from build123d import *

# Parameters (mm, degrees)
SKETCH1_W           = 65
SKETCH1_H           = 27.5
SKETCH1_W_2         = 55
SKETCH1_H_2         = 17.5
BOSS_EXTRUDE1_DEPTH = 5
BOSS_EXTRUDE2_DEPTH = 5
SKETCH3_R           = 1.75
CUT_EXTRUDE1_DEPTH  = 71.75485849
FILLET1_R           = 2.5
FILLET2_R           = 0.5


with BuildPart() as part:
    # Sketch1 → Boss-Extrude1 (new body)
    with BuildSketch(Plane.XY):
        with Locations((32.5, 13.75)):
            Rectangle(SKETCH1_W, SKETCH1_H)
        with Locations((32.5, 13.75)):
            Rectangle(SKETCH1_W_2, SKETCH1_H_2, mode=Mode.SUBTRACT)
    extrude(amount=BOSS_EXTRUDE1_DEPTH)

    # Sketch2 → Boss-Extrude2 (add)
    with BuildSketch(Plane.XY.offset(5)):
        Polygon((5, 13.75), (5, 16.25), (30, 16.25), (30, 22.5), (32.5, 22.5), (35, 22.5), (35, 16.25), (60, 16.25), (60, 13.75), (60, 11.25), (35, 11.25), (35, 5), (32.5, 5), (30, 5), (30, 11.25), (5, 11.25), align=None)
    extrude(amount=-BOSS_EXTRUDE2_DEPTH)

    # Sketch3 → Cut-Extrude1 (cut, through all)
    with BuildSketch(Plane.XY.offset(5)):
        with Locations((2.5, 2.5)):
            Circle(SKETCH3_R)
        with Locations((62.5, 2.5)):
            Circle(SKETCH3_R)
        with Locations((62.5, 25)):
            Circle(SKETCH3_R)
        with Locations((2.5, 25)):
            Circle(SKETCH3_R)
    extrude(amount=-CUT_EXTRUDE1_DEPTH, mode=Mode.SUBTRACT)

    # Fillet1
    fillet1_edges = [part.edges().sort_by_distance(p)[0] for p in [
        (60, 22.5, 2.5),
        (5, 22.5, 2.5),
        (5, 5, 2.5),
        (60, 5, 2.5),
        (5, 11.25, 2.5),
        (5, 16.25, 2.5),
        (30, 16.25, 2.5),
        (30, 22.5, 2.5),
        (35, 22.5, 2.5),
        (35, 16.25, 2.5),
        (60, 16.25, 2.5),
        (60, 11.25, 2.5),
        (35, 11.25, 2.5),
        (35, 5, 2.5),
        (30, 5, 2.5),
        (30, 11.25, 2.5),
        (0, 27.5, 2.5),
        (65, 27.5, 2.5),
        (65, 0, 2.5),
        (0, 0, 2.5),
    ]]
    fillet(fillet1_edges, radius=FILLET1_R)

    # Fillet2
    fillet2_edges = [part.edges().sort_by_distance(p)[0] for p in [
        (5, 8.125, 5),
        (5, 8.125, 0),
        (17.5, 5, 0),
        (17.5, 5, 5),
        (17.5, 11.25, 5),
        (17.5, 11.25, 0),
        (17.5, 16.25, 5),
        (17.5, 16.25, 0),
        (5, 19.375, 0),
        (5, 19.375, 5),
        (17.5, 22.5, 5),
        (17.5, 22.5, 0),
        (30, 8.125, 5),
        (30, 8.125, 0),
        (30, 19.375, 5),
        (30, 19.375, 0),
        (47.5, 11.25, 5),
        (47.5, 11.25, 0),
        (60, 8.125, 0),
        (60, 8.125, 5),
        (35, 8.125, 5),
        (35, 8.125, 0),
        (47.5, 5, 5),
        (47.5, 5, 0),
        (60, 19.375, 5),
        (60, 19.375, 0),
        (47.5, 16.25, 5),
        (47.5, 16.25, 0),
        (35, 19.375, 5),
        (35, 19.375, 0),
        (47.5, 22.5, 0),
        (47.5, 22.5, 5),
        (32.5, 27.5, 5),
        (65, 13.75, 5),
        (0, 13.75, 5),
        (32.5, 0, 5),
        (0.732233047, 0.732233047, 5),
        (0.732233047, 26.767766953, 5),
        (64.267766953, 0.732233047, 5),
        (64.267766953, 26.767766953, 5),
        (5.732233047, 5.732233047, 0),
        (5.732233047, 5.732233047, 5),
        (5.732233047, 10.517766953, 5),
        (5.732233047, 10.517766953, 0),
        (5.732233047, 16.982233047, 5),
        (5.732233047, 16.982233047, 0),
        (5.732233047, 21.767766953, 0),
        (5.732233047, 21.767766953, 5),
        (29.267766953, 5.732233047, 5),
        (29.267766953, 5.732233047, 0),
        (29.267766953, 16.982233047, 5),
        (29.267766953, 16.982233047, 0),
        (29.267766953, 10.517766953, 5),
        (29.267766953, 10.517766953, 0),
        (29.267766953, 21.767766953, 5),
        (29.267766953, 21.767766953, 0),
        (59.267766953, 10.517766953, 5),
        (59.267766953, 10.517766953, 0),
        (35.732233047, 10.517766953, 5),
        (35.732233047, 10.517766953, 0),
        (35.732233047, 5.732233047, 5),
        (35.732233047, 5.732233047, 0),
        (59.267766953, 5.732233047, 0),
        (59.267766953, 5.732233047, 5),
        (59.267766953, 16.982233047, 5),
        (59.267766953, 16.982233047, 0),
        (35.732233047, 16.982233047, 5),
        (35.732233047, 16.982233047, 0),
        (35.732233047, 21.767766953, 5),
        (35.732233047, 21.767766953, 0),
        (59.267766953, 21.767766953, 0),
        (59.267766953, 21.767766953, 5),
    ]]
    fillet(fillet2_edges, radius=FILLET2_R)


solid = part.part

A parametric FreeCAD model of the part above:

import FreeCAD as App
import Part
import Sketcher

V = App.Vector
Q = App.Units.Quantity


def edges_at(feature, points):
    """Names of the edges that pass closest to the given points."""
    edges = feature.Shape.Edges
    near = lambda p: min(range(len(edges)), key=lambda i: edges[i].distToShape(Part.Vertex(*p))[0])
    return sorted({f"Edge{near(p) + 1}" for p in points})


def add_polygon(sketch, points):
    """Adds a closed chain of lines whose ends are joined by coincident constraints."""
    first, n = sketch.GeometryCount, len(points)
    for a, b in zip(points, points[1:] + points[:1]):
        sketch.addGeometry(Part.LineSegment(App.Vector(*a, 0), App.Vector(*b, 0)), False)
    for i in range(n):
        sketch.addConstraint(Sketcher.Constraint("Coincident", first + i, 2, first + (i + 1) % n, 1))

doc = App.newDocument("Part")
body = doc.addObject("PartDesign::Body", "Body")

sketch1 = body.newObject("Sketcher::SketchObject", "Sketch")
sketch1.AttachmentSupport = (doc.getObject("XY_Plane"), [""])
sketch1.MapMode = "FlatFace"
add_polygon(sketch1, [(0, 28), (0, 0), (65, 0), (65, 28)])
add_polygon(sketch1, [(60, 5), (5, 5), (5, 22), (60, 22)])
sketch1.addConstraint([
    Sketcher.Constraint("Vertical", 0),
    Sketcher.Constraint("Horizontal", 1),
    Sketcher.Constraint("Vertical", 2),
    Sketcher.Constraint("Horizontal", 3),
    Sketcher.Constraint("Horizontal", 4),
    Sketcher.Constraint("Vertical", 5),
    Sketcher.Constraint("Horizontal", 6),
    Sketcher.Constraint("Vertical", 7),
    Sketcher.Constraint("Coincident", 0, 2, -1, 1),
    Sketcher.Constraint("DistanceX", 1, 1, 1, 2, Q("65 mm")),
    Sketcher.Constraint("DistanceX", 4, 2, 4, 1, Q("55 mm")),
    Sketcher.Constraint("DistanceY", 0, 2, 0, 1, Q("27.5 mm")),
    Sketcher.Constraint("DistanceY", 5, 1, 5, 2, Q("17.5 mm")),
    Sketcher.Constraint("DistanceX", -1, 1, 4, 2, Q("5 mm")),
    Sketcher.Constraint("DistanceY", -1, 1, 4, 2, Q("5 mm")),
])
pad1 = body.newObject("PartDesign::Pad", "Pad")
pad1.Profile = sketch1
pad1.Length = 5

sketch2 = body.newObject("Sketcher::SketchObject", "Sketch001")
sketch2.AttachmentSupport = (doc.getObject("XY_Plane"), [""])
sketch2.MapMode = "FlatFace"
sketch2.AttachmentOffset = App.Placement(V(0, 0, 5), App.Rotation())
add_polygon(sketch2, [(5, 16), (5, 11), (30, 11), (30, 5), (35, 5), (35, 11), (60, 11), (60, 16), (35, 16), (35, 22), (30, 22), (30, 16)])
sketch2.addConstraint([
    Sketcher.Constraint("Vertical", 0),
    Sketcher.Constraint("Horizontal", 1),
    Sketcher.Constraint("Vertical", 2),
    Sketcher.Constraint("Horizontal", 3),
    Sketcher.Constraint("Vertical", 4),
    Sketcher.Constraint("Horizontal", 5),
    Sketcher.Constraint("Vertical", 6),
    Sketcher.Constraint("Horizontal", 7),
    Sketcher.Constraint("Vertical", 8),
    Sketcher.Constraint("Horizontal", 9),
    Sketcher.Constraint("Vertical", 10),
    Sketcher.Constraint("Horizontal", 11),
    Sketcher.Constraint("Horizontal", 1, 2, 4, 2),
    Sketcher.Constraint("Horizontal", 7, 2, 10, 2),
    Sketcher.Constraint("Vertical", 4, 2, 7, 2),
    Sketcher.Constraint("Vertical", 2, 2, 9, 2),
    Sketcher.Constraint("Equal", 1, 5),
    Sketcher.Constraint("Equal", 9, 0),
    Sketcher.Constraint("Equal", 4, 8),
    Sketcher.Constraint("DistanceX", 1, 1, 1, 2, Q("25 mm")),
    Sketcher.Constraint("DistanceX", 3, 1, 3, 2, Q("5 mm")),
    Sketcher.Constraint("DistanceX", -1, 1, 0, 2, Q("5 mm")),
    Sketcher.Constraint("DistanceY", -1, 1, 2, 2, Q("5 mm")),
    Sketcher.Constraint("DistanceY", 2, 2, 2, 1, Q("6.25 mm")),
])
pad2 = body.newObject("PartDesign::Pad", "Pad001")
pad2.Profile = sketch2
pad2.Length = 5
pad2.Reversed = True

sketch3 = body.newObject("Sketcher::SketchObject", "Sketch002")
sketch3.AttachmentSupport = (doc.getObject("XY_Plane"), [""])
sketch3.MapMode = "FlatFace"
sketch3.AttachmentOffset = App.Placement(V(0, 0, 5), App.Rotation())
sketch3.addGeometry([
    Part.Circle(V(2.5, 2.5, 0), V(0, 0, 1), 1.8),
    Part.Circle(V(62.5, 2.5, 0), V(0, 0, 1), 1.8),
    Part.Circle(V(62.5, 25, 0), V(0, 0, 1), 1.8),
    Part.Circle(V(2.5, 25, 0), V(0, 0, 1), 1.8),
], False)
sketch3.addConstraint([
    Sketcher.Constraint("Equal", 0, 1),
    Sketcher.Constraint("Equal", 1, 2),
    Sketcher.Constraint("Equal", 2, 3),
    Sketcher.Constraint("Horizontal", 0, 3, 1, 3),
    Sketcher.Constraint("Horizontal", 2, 3, 3, 3),
    Sketcher.Constraint("Vertical", 1, 3, 2, 3),
    Sketcher.Constraint("Vertical", 0, 3, 3, 3),
    Sketcher.Constraint("Diameter", 0, Q("3.5 mm")),
    Sketcher.Constraint("DistanceY", -1, 1, 2, 3, Q("25 mm")),
    Sketcher.Constraint("DistanceX", 0, 3, 1, 3, Q("60 mm")),
    Sketcher.Constraint("DistanceX", -1, 1, 0, 3, Q("2.5 mm")),
    Sketcher.Constraint("DistanceY", -1, 1, 0, 3, Q("2.5 mm")),
])
pocket1 = body.newObject("PartDesign::Pocket", "Pocket")
pocket1.Profile = sketch3
pocket1.Type = "ThroughAll"
doc.recompute()

fillet = body.newObject("PartDesign::Fillet", "Fillet")
fillet.Base = (pocket1, edges_at(pocket1, [
    (60, 22.5, 2.5),
    (5, 22.5, 2.5),
    (5, 5, 2.5),
    (60, 5, 2.5),
    (5, 11.25, 2.5),
    (5, 16.25, 2.5),
    (30, 16.25, 2.5),
    (30, 22.5, 2.5),
    (35, 22.5, 2.5),
    (35, 16.25, 2.5),
    (60, 16.25, 2.5),
    (60, 11.25, 2.5),
    (35, 11.25, 2.5),
    (35, 5, 2.5),
    (30, 5, 2.5),
    (30, 11.25, 2.5),
    (0, 27.5, 2.5),
    (65, 27.5, 2.5),
    (65, 0, 2.5),
    (0, 0, 2.5),
]))
fillet.Radius = 2.5
doc.recompute()

fillet2 = body.newObject("PartDesign::Fillet", "Fillet001")
fillet2.Base = (fillet, edges_at(fillet, [
    (5, 8.125, 5),
    (5, 8.125, 0),
    (17.5, 5, 0),
    (17.5, 5, 5),
    (17.5, 11.25, 5),
    (17.5, 11.25, 0),
    (17.5, 16.25, 5),
    (17.5, 16.25, 0),
    (5, 19.375, 0),
    (5, 19.375, 5),
    (17.5, 22.5, 5),
    (17.5, 22.5, 0),
    (30, 8.125, 5),
    (30, 8.125, 0),
    (30, 19.375, 5),
    (30, 19.375, 0),
    (47.5, 11.25, 5),
    (47.5, 11.25, 0),
    (60, 8.125, 0),
    (60, 8.125, 5),
    (35, 8.125, 5),
    (35, 8.125, 0),
    (47.5, 5, 5),
    (47.5, 5, 0),
    (60, 19.375, 5),
    (60, 19.375, 0),
    (47.5, 16.25, 5),
    (47.5, 16.25, 0),
    (35, 19.375, 5),
    (35, 19.375, 0),
    (47.5, 22.5, 0),
    (47.5, 22.5, 5),
    (32.5, 27.5, 5),
    (65, 13.75, 5),
    (0, 13.75, 5),
    (32.5, 0, 5),
    (0.732, 0.732, 5),
    (0.732, 26.768, 5),
    (64.268, 0.732, 5),
    (64.268, 26.768, 5),
    (5.732, 5.732, 0),
    (5.732, 5.732, 5),
    (5.732, 10.518, 5),
    (5.732, 10.518, 0),
    (5.732, 16.982, 5),
    (5.732, 16.982, 0),
    (5.732, 21.768, 0),
    (5.732, 21.768, 5),
    (29.268, 5.732, 5),
    (29.268, 5.732, 0),
    (29.268, 16.982, 5),
    (29.268, 16.982, 0),
    (29.268, 10.518, 5),
    (29.268, 10.518, 0),
    (29.268, 21.768, 5),
    (29.268, 21.768, 0),
    (59.268, 10.518, 5),
    (59.268, 10.518, 0),
    (35.732, 10.518, 5),
    (35.732, 10.518, 0),
    (35.732, 5.732, 5),
    (35.732, 5.732, 0),
    (59.268, 5.732, 0),
    (59.268, 5.732, 5),
    (59.268, 16.982, 5),
    (59.268, 16.982, 0),
    (35.732, 16.982, 5),
    (35.732, 16.982, 0),
    (35.732, 21.768, 5),
    (35.732, 21.768, 0),
    (59.268, 21.768, 0),
    (59.268, 21.768, 5),
]))
fillet2.Radius = 0.5

doc.recompute()
